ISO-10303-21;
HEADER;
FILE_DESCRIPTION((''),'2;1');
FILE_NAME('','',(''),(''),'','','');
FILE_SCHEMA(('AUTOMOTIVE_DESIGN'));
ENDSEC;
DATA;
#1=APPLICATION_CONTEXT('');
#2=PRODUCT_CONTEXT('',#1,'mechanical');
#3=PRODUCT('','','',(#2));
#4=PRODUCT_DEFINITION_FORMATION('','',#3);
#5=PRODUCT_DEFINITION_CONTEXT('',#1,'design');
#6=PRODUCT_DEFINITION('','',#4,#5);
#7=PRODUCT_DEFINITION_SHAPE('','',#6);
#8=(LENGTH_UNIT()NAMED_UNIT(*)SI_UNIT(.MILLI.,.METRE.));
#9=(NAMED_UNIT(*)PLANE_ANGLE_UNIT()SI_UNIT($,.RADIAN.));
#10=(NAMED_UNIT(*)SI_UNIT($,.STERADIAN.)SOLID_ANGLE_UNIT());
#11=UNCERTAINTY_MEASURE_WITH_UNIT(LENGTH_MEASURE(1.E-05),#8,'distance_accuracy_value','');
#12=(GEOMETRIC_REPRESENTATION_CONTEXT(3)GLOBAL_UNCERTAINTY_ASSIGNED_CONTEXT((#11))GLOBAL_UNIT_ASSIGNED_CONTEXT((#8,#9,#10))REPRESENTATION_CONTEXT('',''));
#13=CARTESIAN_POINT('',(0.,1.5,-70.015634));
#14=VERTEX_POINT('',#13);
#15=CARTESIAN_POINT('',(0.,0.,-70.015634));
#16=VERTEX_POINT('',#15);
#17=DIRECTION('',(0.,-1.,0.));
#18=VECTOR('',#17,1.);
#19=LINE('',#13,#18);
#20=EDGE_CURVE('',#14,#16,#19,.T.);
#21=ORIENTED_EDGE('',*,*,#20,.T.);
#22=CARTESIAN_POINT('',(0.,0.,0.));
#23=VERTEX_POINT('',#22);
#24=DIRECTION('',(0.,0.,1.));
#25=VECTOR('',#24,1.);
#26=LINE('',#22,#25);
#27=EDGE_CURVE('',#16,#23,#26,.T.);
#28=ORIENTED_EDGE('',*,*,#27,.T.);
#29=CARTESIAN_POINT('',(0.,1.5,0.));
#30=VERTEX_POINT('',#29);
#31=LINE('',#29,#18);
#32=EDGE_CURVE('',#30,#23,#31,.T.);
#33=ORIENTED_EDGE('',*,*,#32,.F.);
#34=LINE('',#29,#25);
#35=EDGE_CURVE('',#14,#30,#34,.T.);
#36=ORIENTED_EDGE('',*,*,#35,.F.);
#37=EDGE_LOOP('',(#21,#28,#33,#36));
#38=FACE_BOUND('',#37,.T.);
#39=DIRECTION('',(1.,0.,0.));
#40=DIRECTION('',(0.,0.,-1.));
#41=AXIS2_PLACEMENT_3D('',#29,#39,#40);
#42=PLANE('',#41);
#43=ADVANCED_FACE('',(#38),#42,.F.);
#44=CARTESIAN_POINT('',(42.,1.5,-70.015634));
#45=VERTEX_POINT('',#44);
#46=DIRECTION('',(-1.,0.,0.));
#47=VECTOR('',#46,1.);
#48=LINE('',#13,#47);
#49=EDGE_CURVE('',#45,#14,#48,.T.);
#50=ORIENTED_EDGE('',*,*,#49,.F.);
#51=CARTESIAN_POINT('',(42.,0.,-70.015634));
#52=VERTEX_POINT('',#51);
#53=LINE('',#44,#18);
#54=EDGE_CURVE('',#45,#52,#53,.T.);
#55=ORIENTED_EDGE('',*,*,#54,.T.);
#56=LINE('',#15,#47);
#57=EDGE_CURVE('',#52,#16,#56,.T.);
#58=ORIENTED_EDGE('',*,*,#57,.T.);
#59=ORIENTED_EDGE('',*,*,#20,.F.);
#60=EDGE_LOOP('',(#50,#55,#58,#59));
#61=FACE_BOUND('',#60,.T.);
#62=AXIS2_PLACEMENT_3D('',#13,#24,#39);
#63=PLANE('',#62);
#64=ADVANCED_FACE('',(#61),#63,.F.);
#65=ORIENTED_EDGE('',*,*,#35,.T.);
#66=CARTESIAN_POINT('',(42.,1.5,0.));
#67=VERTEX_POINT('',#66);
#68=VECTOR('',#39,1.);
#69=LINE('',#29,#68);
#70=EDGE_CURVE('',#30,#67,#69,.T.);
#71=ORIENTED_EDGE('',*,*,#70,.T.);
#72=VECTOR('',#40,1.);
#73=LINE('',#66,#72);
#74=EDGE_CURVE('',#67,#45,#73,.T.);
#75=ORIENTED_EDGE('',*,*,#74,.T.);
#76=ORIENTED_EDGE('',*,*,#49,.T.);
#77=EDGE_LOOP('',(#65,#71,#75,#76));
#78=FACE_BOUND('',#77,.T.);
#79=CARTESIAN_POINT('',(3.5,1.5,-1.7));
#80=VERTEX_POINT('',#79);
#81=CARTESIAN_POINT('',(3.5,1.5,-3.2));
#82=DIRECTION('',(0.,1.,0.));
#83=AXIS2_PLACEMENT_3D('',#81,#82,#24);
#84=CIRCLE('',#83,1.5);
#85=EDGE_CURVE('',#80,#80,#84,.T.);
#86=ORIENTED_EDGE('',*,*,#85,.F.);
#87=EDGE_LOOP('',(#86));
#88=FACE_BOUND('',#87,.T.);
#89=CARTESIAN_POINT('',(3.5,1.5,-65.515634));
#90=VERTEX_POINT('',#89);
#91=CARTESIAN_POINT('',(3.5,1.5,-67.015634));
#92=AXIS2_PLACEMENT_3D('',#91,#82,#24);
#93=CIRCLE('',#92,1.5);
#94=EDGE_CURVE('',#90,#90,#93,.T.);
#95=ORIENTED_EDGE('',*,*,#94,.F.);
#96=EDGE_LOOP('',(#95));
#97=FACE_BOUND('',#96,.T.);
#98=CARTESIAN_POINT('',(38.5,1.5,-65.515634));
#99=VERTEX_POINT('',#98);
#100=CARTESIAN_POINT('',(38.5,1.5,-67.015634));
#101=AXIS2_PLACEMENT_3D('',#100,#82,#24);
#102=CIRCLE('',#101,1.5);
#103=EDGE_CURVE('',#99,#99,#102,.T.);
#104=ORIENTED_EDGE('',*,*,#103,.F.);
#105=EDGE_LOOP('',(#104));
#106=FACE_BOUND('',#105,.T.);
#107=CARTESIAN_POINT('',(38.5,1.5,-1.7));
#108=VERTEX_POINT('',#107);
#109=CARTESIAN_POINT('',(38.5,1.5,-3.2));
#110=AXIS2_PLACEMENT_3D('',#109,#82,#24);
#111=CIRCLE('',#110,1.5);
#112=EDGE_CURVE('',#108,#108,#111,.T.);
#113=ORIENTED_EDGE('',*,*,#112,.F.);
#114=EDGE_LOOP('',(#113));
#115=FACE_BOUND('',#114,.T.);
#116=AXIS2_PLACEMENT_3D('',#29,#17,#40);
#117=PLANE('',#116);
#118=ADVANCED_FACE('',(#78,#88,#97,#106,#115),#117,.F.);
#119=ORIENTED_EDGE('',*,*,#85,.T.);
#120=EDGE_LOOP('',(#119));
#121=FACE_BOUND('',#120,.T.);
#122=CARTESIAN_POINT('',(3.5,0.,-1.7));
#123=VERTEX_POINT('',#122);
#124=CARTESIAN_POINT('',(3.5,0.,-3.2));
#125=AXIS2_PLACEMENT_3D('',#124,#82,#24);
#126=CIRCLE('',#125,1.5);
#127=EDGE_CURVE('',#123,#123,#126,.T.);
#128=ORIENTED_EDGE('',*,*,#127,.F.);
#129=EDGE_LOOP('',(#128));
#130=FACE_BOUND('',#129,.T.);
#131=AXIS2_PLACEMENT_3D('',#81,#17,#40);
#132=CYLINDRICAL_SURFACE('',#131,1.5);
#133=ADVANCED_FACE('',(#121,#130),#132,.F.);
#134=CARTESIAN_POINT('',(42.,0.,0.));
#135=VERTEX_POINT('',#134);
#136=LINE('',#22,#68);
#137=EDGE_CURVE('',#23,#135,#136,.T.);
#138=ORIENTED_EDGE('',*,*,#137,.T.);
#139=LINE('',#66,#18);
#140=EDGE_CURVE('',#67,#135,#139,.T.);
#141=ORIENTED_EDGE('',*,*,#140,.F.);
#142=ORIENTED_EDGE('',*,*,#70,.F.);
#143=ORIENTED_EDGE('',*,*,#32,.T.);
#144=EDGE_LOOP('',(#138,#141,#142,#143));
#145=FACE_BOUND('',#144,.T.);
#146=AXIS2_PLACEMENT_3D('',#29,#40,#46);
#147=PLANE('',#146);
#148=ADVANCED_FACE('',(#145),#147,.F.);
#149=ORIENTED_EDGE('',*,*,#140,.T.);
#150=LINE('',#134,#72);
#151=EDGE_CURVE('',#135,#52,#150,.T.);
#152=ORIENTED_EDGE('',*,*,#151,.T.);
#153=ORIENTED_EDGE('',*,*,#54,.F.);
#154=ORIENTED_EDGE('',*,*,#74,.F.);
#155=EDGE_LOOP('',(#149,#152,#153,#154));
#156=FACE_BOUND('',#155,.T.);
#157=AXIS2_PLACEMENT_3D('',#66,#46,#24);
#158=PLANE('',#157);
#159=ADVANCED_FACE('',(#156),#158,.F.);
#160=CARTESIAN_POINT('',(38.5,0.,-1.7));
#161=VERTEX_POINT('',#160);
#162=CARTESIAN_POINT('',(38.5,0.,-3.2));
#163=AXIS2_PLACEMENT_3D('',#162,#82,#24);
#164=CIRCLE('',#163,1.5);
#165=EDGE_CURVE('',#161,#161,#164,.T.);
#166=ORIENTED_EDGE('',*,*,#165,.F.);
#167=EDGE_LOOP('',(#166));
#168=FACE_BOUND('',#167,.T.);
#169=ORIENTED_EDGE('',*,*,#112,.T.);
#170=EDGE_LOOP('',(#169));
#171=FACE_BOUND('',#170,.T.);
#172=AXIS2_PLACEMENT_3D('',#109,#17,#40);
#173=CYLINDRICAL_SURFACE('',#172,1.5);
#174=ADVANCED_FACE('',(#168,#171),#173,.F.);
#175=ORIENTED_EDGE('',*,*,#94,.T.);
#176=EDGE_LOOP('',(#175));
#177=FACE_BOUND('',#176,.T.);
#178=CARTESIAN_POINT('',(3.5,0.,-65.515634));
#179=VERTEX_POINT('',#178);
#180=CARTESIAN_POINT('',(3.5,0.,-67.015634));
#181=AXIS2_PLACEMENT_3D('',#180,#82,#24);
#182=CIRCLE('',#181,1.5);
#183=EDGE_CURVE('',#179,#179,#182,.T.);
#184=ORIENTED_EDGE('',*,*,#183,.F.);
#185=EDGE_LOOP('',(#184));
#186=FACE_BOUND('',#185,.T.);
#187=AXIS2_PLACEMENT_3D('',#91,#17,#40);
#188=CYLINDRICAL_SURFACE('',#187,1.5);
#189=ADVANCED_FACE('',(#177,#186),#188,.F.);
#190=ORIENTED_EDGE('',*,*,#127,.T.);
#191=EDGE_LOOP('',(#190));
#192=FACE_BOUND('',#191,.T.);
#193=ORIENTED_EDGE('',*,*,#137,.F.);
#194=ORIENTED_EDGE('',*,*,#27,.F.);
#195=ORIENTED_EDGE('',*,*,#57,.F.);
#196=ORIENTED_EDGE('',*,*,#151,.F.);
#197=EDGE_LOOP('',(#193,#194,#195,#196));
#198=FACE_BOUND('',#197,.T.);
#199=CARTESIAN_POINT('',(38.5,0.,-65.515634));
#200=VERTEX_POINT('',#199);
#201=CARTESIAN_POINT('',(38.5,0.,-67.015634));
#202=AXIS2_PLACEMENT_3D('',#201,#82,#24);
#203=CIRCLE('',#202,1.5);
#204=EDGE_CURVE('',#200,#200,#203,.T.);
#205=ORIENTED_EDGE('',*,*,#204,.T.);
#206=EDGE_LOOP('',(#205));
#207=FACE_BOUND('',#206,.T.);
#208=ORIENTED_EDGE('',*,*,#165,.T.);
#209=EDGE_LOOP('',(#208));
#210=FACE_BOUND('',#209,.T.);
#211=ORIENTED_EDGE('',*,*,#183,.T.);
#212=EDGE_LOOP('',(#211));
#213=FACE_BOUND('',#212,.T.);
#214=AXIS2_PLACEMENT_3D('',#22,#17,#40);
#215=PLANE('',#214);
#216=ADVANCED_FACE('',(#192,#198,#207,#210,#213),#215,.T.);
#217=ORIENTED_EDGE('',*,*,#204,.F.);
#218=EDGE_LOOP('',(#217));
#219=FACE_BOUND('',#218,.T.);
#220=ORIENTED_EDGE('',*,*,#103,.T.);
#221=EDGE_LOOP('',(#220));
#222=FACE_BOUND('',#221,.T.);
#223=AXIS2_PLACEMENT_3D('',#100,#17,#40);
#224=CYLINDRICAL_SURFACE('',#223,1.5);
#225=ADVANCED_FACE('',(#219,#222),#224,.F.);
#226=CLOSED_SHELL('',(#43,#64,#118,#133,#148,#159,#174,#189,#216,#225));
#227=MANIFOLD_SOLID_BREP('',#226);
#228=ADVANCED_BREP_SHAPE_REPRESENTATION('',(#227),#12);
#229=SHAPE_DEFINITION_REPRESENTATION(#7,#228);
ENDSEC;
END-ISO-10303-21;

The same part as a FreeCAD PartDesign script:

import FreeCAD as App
import Part
import Sketcher

doc = App.newDocument("Part")
params = doc.addObject("Spreadsheet::Sheet", "Params")
for row, (alias, value) in enumerate([
    ("sketch1_diameter", "3 mm"),
    ("sketch1_width", "42 mm"),
    ("pad1_length", "1.5 mm"),
], start=1):
    params.set(f"A{row}", alias)
    params.set(f"B{row}", "=" + value)
    params.setAlias(f"B{row}", alias)

body = doc.addObject("PartDesign::Body", "Body")

# Sketch on XZ plane
sketch1 = doc.addObject("Sketcher::SketchObject", "Sketch")
body.addObject(sketch1)
sketch1.AttachmentSupport = (doc.XZ_Plane, [""])
sketch1.MapMode = "FlatFace"
sketch1.addGeometry(Part.LineSegment(App.Vector(0, -70.015634, 0), App.Vector(0, 0, 0)), False)
sketch1.addGeometry(Part.LineSegment(App.Vector(0, 0, 0), App.Vector(42, 0, 0)), False)
sketch1.addGeometry(Part.LineSegment(App.Vector(42, 0, 0), App.Vector(42, -70.015634, 0)), False)
sketch1.addGeometry(Part.LineSegment(App.Vector(42, -70.015634, 0), App.Vector(0, -70.015634, 0)), False)
sketch1.addGeometry(Part.Circle(App.Vector(3.5, -3.2, 0), App.Vector(0, 0, 1), 1.5), False)
sketch1.addGeometry(Part.Circle(App.Vector(38.5, -3.2, 0), App.Vector(0, 0, 1), 1.5), False)
sketch1.addGeometry(Part.Circle(App.Vector(3.5, -67.015634, 0), App.Vector(0, 0, 1), 1.5), False)
sketch1.addGeometry(Part.Circle(App.Vector(38.5, -67.015634, 0), App.Vector(0, 0, 1), 1.5), False)
sketch1.addConstraint(Sketcher.Constraint("Coincident", 0, 2, 1, 1))
sketch1.addConstraint(Sketcher.Constraint("Coincident", 1, 2, 2, 1))
sketch1.addConstraint(Sketcher.Constraint("Coincident", 2, 2, 3, 1))
sketch1.addConstraint(Sketcher.Constraint("Coincident", 3, 2, 0, 1))
sketch1.addConstraint(Sketcher.Constraint("Vertical", 0))
sketch1.addConstraint(Sketcher.Constraint("Horizontal", 1))
sketch1.addConstraint(Sketcher.Constraint("Vertical", 2))
sketch1.addConstraint(Sketcher.Constraint("Horizontal", 3))
sketch1.addConstraint(Sketcher.Constraint("Coincident", 0, 2, -1, 1))
sketch1.addConstraint(Sketcher.Constraint("Equal", 4, 5))
sketch1.addConstraint(Sketcher.Constraint("Equal", 5, 6))
sketch1.addConstraint(Sketcher.Constraint("Equal", 6, 7))
sketch1.addConstraint(Sketcher.Constraint("Horizontal", 4, 3, 5, 3))
sketch1.addConstraint(Sketcher.Constraint("Horizontal", 6, 3, 7, 3))
sketch1.addConstraint(Sketcher.Constraint("Vertical", 4, 3, 6, 3))
sketch1.addConstraint(Sketcher.Constraint("Vertical", 5, 3, 7, 3))
sketch1.addConstraint(Sketcher.Constraint("Diameter", 4, 3.0))
sketch1.addConstraint(Sketcher.Constraint("DistanceX", 1, 1, 1, 2, 42.0))
sketch1.addConstraint(Sketcher.Constraint("DistanceX", 4, 3, 5, 3, 35.0))
sketch1.addConstraint(Sketcher.Constraint("DistanceY", 2, 2, 7, 3, 3.0))
sketch1.addConstraint(Sketcher.Constraint("DistanceX", -1, 1, 4, 3, 3.5))
sketch1.addConstraint(Sketcher.Constraint("DistanceY", 4, 3, -1, 1, 3.2))
sketch1.addConstraint(Sketcher.Constraint("DistanceY", 0, 1, 0, 2, 70.015634))
sketch1.setExpression("Constraints[16]", "Params.sketch1_diameter")
sketch1.setExpression("Constraints[17]", "Params.sketch1_width")
pad1 = doc.addObject("PartDesign::Pad", "Pad")
body.addObject(pad1)
pad1.Profile = sketch1
pad1.setExpression("Length", "Params.pad1_length")
pad1.Reversed = True

doc.recompute()
